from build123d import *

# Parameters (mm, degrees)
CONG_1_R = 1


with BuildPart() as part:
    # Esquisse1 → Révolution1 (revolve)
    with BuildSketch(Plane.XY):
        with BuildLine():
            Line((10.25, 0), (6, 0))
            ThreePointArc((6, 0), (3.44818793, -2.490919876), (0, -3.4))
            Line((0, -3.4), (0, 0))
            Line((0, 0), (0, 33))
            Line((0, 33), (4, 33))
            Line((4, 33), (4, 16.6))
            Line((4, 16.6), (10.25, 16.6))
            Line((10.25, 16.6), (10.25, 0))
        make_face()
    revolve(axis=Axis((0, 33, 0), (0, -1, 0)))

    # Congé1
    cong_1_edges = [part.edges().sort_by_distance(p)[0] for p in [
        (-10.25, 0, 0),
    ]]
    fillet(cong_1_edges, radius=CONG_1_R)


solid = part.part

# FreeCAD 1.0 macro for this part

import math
import FreeCAD as App
import Part
import Sketcher
from FreeCAD import Vector


def edges_at(feature, points):
    """Names of the edges that pass closest to the given points."""
    edges = feature.Shape.Edges
    near = lambda p: min(range(len(edges)), key=lambda i: edges[i].distToShape(Part.Vertex(*p))[0])
    return sorted({f"Edge{near(p) + 1}" for p in points})

doc = App.newDocument("Part")
body = doc.addObject("PartDesign::Body", "Body")

sketch1 = doc.addObject("Sketcher::SketchObject", "Sketch")
body.addObject(sketch1)
sketch1.AttachmentSupport = (doc.XY_Plane, [""])
sketch1.MapMode = "FlatFace"
sketch1.addGeometry(Part.LineSegment(Vector(6, 0, 0), Vector(10.2, 0, 0)), False)
sketch1.addGeometry(Part.LineSegment(Vector(10.2, 0, 0), Vector(10.2, 16.6, 0)), False)
sketch1.addGeometry(Part.LineSegment(Vector(10.2, 16.6, 0), Vector(4, 16.6, 0)), False)
sketch1.addGeometry(Part.LineSegment(Vector(4, 16.6, 0), Vector(4, 33, 0)), False)
sketch1.addGeometry(Part.LineSegment(Vector(4, 33, 0), Vector(0, 33, 0)), False)
sketch1.addGeometry(Part.LineSegment(Vector(0, 33, 0), Vector(0, -3.4, 0)), False)
sketch1.addGeometry(Part.ArcOfCircle(Part.Circle(Vector(0, 3.6, 0), Vector(0, 0, 1), 7), math.radians(-90), math.radians(-31)), False)
sketch1.addConstraint(Sketcher.Constraint("Coincident", 0, 2, 1, 1))
sketch1.addConstraint(Sketcher.Constraint("Coincident", 1, 2, 2, 1))
sketch1.addConstraint(Sketcher.Constraint("Coincident", 2, 2, 3, 1))
sketch1.addConstraint(Sketcher.Constraint("Coincident", 3, 2, 4, 1))
sketch1.addConstraint(Sketcher.Constraint("Coincident", 4, 2, 5, 1))
sketch1.addConstraint(Sketcher.Constraint("Coincident", 5, 2, 6, 1))
sketch1.addConstraint(Sketcher.Constraint("Coincident", 6, 2, 0, 1))
sketch1.addConstraint(Sketcher.Constraint("Horizontal", 0))
sketch1.addConstraint(Sketcher.Constraint("Vertical", 1))
sketch1.addConstraint(Sketcher.Constraint("Horizontal", 2))
sketch1.addConstraint(Sketcher.Constraint("Vertical", 3))
sketch1.addConstraint(Sketcher.Constraint("Horizontal", 4))
sketch1.addConstraint(Sketcher.Constraint("Vertical", 5))
sketch1.addConstraint(Sketcher.Constraint("PointOnObject", 6, 3, -2))
sketch1.addConstraint(Sketcher.Constraint("PointOnObject", 0, 2, -1))
sketch1.addConstraint(Sketcher.Constraint("PointOnObject", 4, 2, -2))
sketch1.addConstraint(Sketcher.Constraint("DistanceX", 4, 2, 4, 1, 4.0))
sketch1.addConstraint(Sketcher.Constraint("DistanceY", 1, 1, 1, 2, 16.6))
sketch1.addConstraint(Sketcher.Constraint("DistanceY", 3, 1, 3, 2, 16.4))
sketch1.addConstraint(Sketcher.Constraint("DistanceY", 5, 2, 5, 1, 36.4))
sketch1.addConstraint(Sketcher.Constraint("DistanceX", -1, 1, 6, 2, 6.0))
sketch1.addConstraint(Sketcher.Constraint("DistanceX", 0, 1, 0, 2, 4.25))
revolution = doc.addObject("PartDesign::Revolution", "Revolution")
body.addObject(revolution)
revolution.Profile = sketch1
revolution.ReferenceAxis = (sketch1, ["V_Axis"])
revolution.Angle = 360
doc.recompute()

fillet = doc.addObject("PartDesign::Fillet", "Fillet")
body.addObject(fillet)
fillet.Base = (revolution, edges_at(revolution, [(-10.25, 0, 0)]))
fillet.Radius = 1

doc.recompute()
